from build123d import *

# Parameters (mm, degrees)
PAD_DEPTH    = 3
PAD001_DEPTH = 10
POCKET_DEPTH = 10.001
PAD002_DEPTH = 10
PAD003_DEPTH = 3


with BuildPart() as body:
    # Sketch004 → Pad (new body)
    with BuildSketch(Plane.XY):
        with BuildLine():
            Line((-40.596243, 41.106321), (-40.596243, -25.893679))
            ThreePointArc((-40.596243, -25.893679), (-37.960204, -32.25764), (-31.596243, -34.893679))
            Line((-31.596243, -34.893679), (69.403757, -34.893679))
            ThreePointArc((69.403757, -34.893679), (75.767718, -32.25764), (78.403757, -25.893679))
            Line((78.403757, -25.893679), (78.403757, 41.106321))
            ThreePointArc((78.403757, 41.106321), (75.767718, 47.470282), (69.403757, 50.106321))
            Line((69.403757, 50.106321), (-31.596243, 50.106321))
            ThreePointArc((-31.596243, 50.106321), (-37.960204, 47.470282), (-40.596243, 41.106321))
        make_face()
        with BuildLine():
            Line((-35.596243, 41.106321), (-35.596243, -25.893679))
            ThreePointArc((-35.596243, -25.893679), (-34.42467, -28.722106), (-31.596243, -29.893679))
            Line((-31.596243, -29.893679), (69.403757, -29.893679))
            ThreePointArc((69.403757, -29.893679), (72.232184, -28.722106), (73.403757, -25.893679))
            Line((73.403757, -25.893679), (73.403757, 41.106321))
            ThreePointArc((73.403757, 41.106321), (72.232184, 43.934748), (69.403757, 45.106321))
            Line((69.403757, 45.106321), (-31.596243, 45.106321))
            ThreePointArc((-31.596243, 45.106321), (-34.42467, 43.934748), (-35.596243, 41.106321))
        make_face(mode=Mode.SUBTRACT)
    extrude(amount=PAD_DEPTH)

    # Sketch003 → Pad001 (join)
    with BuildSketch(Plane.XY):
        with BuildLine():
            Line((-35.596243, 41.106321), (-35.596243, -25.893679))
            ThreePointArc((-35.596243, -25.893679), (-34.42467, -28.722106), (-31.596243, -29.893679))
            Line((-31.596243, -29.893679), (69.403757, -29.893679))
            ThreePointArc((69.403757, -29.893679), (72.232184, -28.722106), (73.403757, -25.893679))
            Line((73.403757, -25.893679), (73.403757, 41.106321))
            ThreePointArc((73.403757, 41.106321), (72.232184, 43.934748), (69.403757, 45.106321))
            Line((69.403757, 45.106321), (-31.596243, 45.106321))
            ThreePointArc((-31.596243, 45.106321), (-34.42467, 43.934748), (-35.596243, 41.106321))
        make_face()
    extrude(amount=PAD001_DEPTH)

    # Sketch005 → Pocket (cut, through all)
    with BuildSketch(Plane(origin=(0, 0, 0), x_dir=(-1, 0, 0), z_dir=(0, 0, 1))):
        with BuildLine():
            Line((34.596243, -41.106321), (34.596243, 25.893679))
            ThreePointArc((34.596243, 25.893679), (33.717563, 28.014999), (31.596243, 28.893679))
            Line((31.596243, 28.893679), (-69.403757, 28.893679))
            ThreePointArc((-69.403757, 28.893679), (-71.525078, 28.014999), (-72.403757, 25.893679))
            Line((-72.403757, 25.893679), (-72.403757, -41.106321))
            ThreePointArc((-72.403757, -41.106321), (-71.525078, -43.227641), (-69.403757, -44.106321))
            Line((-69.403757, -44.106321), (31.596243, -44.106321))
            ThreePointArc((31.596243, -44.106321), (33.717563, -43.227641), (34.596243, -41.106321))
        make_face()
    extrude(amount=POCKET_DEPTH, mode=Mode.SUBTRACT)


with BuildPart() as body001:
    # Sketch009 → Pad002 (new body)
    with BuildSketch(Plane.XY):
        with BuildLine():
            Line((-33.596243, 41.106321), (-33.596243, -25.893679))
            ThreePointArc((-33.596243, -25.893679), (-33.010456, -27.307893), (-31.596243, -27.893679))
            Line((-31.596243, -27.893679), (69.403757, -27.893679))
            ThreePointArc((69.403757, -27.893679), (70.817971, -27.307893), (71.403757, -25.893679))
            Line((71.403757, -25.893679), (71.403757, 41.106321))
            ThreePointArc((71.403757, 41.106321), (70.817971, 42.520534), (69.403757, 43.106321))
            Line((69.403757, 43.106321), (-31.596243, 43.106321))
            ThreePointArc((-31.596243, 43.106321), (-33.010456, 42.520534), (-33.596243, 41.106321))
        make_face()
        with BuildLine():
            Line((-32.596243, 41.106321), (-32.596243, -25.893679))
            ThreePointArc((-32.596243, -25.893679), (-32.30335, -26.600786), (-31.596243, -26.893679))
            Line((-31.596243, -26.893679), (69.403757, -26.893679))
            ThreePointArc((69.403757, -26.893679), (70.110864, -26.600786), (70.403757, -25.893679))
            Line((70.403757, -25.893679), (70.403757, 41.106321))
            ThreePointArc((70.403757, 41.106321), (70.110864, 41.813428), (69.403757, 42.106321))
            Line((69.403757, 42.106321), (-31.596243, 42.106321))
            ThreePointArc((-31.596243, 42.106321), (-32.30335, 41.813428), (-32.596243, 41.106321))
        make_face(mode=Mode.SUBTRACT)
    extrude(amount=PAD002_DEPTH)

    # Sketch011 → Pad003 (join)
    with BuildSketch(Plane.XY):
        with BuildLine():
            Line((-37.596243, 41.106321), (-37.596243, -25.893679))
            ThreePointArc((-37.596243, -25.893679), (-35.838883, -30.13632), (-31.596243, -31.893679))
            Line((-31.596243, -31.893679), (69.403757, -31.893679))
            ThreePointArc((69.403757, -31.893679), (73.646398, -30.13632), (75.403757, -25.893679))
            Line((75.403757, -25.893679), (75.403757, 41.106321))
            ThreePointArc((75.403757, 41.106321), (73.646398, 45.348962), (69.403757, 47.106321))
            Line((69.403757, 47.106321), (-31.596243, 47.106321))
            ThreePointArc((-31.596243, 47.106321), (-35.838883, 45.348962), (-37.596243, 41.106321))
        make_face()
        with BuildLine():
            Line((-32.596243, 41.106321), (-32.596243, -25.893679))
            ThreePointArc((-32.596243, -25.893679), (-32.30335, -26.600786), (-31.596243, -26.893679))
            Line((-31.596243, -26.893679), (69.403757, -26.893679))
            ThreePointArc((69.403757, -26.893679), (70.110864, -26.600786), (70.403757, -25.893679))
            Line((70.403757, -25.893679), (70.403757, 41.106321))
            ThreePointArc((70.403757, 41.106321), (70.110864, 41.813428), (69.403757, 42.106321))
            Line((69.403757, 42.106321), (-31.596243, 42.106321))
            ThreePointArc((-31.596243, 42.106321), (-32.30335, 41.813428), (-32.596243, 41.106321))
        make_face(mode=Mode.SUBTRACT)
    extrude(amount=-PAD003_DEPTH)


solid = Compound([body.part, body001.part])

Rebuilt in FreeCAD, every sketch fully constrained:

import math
import FreeCAD as App
import Part
import Sketcher
from FreeCAD import Vector
Q = App.Units.Quantity

doc = App.newDocument("Part")
body = doc.addObject("PartDesign::Body", "Body")

# Sketch on XY plane
sketch1 = doc.addObject("Sketcher::SketchObject", "Sketch")
body.addObject(sketch1)
sketch1.AttachmentSupport = (doc.XY_Plane, [""])
sketch1.MapMode = "FlatFace"
sketch1.addGeometry(Part.LineSegment(Vector(-40.6, 41.1, 0), Vector(-40.6, -25.9, 0)), False)
sketch1.addGeometry(Part.ArcOfCircle(Part.Circle(Vector(-31.6, -25.9, 0), Vector(0, 0, 1), 9), math.radians(-180), math.radians(-90)), False)
sketch1.addGeometry(Part.LineSegment(Vector(-31.6, -34.9, 0), Vector(69.4, -34.9, 0)), False)
sketch1.addGeometry(Part.ArcOfCircle(Part.Circle(Vector(69.4, -25.9, 0), Vector(0, 0, 1), 9), math.radians(-90), math.radians(0)), False)
sketch1.addGeometry(Part.LineSegment(Vector(78.4, -25.9, 0), Vector(78.4, 41.1, 0)), False)
sketch1.addGeometry(Part.ArcOfCircle(Part.Circle(Vector(69.4, 41.1, 0), Vector(0, 0, 1), 9), math.radians(0), math.radians(90)), False)
sketch1.addGeometry(Part.LineSegment(Vector(69.4, 50.1, 0), Vector(-31.6, 50.1, 0)), False)
sketch1.addGeometry(Part.ArcOfCircle(Part.Circle(Vector(-31.6, 41.1, 0), Vector(0, 0, 1), 9), math.radians(90), math.radians(180)), False)
sketch1.addGeometry(Part.LineSegment(Vector(-35.6, -25.9, 0), Vector(-35.6, 41.1, 0)), False)
sketch1.addGeometry(Part.ArcOfCircle(Part.Circle(Vector(-31.6, 41.1, 0), Vector(0, 0, 1), 4), math.radians(90), math.radians(180)), False)
sketch1.addGeometry(Part.LineSegment(Vector(-31.6, 45.1, 0), Vector(69.4, 45.1, 0)), False)
sketch1.addGeometry(Part.ArcOfCircle(Part.Circle(Vector(69.4, 41.1, 0), Vector(0, 0, 1), 4), math.radians(0), math.radians(90)), False)
sketch1.addGeometry(Part.LineSegment(Vector(73.4, 41.1, 0), Vector(73.4, -25.9, 0)), False)
sketch1.addGeometry(Part.ArcOfCircle(Part.Circle(Vector(69.4, -25.9, 0), Vector(0, 0, 1), 4), math.radians(-90), math.radians(0)), False)
sketch1.addGeometry(Part.LineSegment(Vector(69.4, -29.9, 0), Vector(-31.6, -29.9, 0)), False)
sketch1.addGeometry(Part.ArcOfCircle(Part.Circle(Vector(-31.6, -25.9, 0), Vector(0, 0, 1), 4), math.radians(-180), math.radians(-90)), False)
sketch1.addConstraint(Sketcher.Constraint("Tangent", 0, 2, 1, 1))
sketch1.addConstraint(Sketcher.Constraint("Tangent", 1, 2, 2, 1))
sketch1.addConstraint(Sketcher.Constraint("Tangent", 2, 2, 3, 1))
sketch1.addConstraint(Sketcher.Constraint("Tangent", 3, 2, 4, 1))
sketch1.addConstraint(Sketcher.Constraint("Tangent", 4, 2, 5, 1))
sketch1.addConstraint(Sketcher.Constraint("Tangent", 5, 2, 6, 1))
sketch1.addConstraint(Sketcher.Constraint("Tangent", 6, 2, 7, 1))
sketch1.addConstraint(Sketcher.Constraint("Tangent", 7, 2, 0, 1))
sketch1.addConstraint(Sketcher.Constraint("Tangent", 8, 2, 9, 2))
sketch1.addConstraint(Sketcher.Constraint("Tangent", 9, 1, 10, 1))
sketch1.addConstraint(Sketcher.Constraint("Tangent", 10, 2, 11, 2))
sketch1.addConstraint(Sketcher.Constraint("Tangent", 11, 1, 12, 1))
sketch1.addConstraint(Sketcher.Constraint("Tangent", 12, 2, 13, 2))
sketch1.addConstraint(Sketcher.Constraint("Tangent", 13, 1, 14, 1))
sketch1.addConstraint(Sketcher.Constraint("Tangent", 14, 2, 15, 2))
sketch1.addConstraint(Sketcher.Constraint("Tangent", 15, 1, 8, 1))
sketch1.addConstraint(Sketcher.Constraint("Vertical", 0))
sketch1.addConstraint(Sketcher.Constraint("Horizontal", 2))
sketch1.addConstraint(Sketcher.Constraint("Vertical", 4))
sketch1.addConstraint(Sketcher.Constraint("Horizontal", 6))
sketch1.addConstraint(Sketcher.Constraint("Vertical", 8))
sketch1.addConstraint(Sketcher.Constraint("Horizontal", 10))
sketch1.addConstraint(Sketcher.Constraint("Vertical", 12))
sketch1.addConstraint(Sketcher.Constraint("Horizontal", 14))
sketch1.addConstraint(Sketcher.Constraint("Coincident", 9, 3, 7, 3))
sketch1.addConstraint(Sketcher.Constraint("Coincident", 11, 3, 5, 3))
sketch1.addConstraint(Sketcher.Constraint("Coincident", 13, 3, 3, 3))
sketch1.addConstraint(Sketcher.Constraint("Equal", 1, 3))
sketch1.addConstraint(Sketcher.Constraint("Equal", 3, 5))
sketch1.addConstraint(Sketcher.Constraint("Equal", 5, 7))
sketch1.addConstraint(Sketcher.Constraint("Equal", 13, 15))
sketch1.addConstraint(Sketcher.Constraint("Radius", 1, Q("9 mm")))
sketch1.addConstraint(Sketcher.Constraint("Radius", 9, Q("4 mm")))
sketch1.addConstraint(Sketcher.Constraint("DistanceX", 2, 1, 2, 2, Q("101 mm")))
sketch1.addConstraint(Sketcher.Constraint("DistanceY", 0, 2, 0, 1, Q("67 mm")))
sketch1.addConstraint(Sketcher.Constraint("DistanceY", 1, 3, -1, 1, Q("25.893679 mm")))
sketch1.addConstraint(Sketcher.Constraint("DistanceX", 1, 3, -1, 1, Q("31.596243 mm")))
pad1 = doc.addObject("PartDesign::Pad", "Pad")
body.addObject(pad1)
pad1.Profile = sketch1
pad1.Length = 3

# Sketch on XY plane
sketch2 = doc.addObject("Sketcher::SketchObject", "Sketch001")
body.addObject(sketch2)
sketch2.AttachmentSupport = (doc.XY_Plane, [""])
sketch2.MapMode = "FlatFace"
sketch2.addGeometry(Part.LineSegment(Vector(-35.6, 41.1, 0), Vector(-35.6, -25.9, 0)), False)
sketch2.addGeometry(Part.ArcOfCircle(Part.Circle(Vector(-31.6, -25.9, 0), Vector(0, 0, 1), 4), math.radians(-180), math.radians(-90)), False)
sketch2.addGeometry(Part.LineSegment(Vector(-31.6, -29.9, 0), Vector(69.4, -29.9, 0)), False)
sketch2.addGeometry(Part.ArcOfCircle(Part.Circle(Vector(69.4, -25.9, 0), Vector(0, 0, 1), 4), math.radians(-90), math.radians(0)), False)
sketch2.addGeometry(Part.LineSegment(Vector(73.4, -25.9, 0), Vector(73.4, 41.1, 0)), False)
sketch2.addGeometry(Part.ArcOfCircle(Part.Circle(Vector(69.4, 41.1, 0), Vector(0, 0, 1), 4), math.radians(0), math.radians(90)), False)
sketch2.addGeometry(Part.LineSegment(Vector(69.4, 45.1, 0), Vector(-31.6, 45.1, 0)), False)
sketch2.addGeometry(Part.ArcOfCircle(Part.Circle(Vector(-31.6, 41.1, 0), Vector(0, 0, 1), 4), math.radians(90), math.radians(180)), False)
sketch2.addConstraint(Sketcher.Constraint("Tangent", 0, 2, 1, 1))
sketch2.addConstraint(Sketcher.Constraint("Tangent", 1, 2, 2, 1))
sketch2.addConstraint(Sketcher.Constraint("Tangent", 2, 2, 3, 1))
sketch2.addConstraint(Sketcher.Constraint("Tangent", 3, 2, 4, 1))
sketch2.addConstraint(Sketcher.Constraint("Tangent", 4, 2, 5, 1))
sketch2.addConstraint(Sketcher.Constraint("Tangent", 5, 2, 6, 1))
sketch2.addConstraint(Sketcher.Constraint("Tangent", 6, 2, 7, 1))
sketch2.addConstraint(Sketcher.Constraint("Tangent", 7, 2, 0, 1))
sketch2.addConstraint(Sketcher.Constraint("Vertical", 0))
sketch2.addConstraint(Sketcher.Constraint("Horizontal", 2))
sketch2.addConstraint(Sketcher.Constraint("Vertical", 4))
sketch2.addConstraint(Sketcher.Constraint("Horizontal", 6))
sketch2.addConstraint(Sketcher.Constraint("Equal", 1, 3))
sketch2.addConstraint(Sketcher.Constraint("Equal", 3, 5))
sketch2.addConstraint(Sketcher.Constraint("Equal", 5, 7))
sketch2.addConstraint(Sketcher.Constraint("Radius", 1, Q("4 mm")))
sketch2.addConstraint(Sketcher.Constraint("DistanceX", 2, 1, 2, 2, Q("101 mm")))
sketch2.addConstraint(Sketcher.Constraint("DistanceY", 0, 2, 0, 1, Q("67 mm")))
sketch2.addConstraint(Sketcher.Constraint("DistanceY", 1, 3, -1, 1, Q("25.893679 mm")))
sketch2.addConstraint(Sketcher.Constraint("DistanceX", 1, 3, -1, 1, Q("31.596243 mm")))
pad2 = doc.addObject("PartDesign::Pad", "Pad001")
body.addObject(pad2)
pad2.Profile = sketch2
pad2.Length = 10

# Sketch on XY plane
sketch3 = doc.addObject("Sketcher::SketchObject", "Sketch002")
body.addObject(sketch3)
sketch3.AttachmentSupport = (doc.XY_Plane, [""])
sketch3.MapMode = "FlatFace"
sketch3.addGeometry(Part.LineSegment(Vector(-34.6, 41.1, 0), Vector(-34.6, -25.9, 0)), False)
sketch3.addGeometry(Part.ArcOfCircle(Part.Circle(Vector(-31.6, -25.9, 0), Vector(0, 0, 1), 3), math.radians(-180), math.radians(-90)), False)
sketch3.addGeometry(Part.LineSegment(Vector(-31.6, -28.9, 0), Vector(69.4, -28.9, 0)), False)
sketch3.addGeometry(Part.ArcOfCircle(Part.Circle(Vector(69.4, -25.9, 0), Vector(0, 0, 1), 3), math.radians(-90), math.radians(0)), False)
sketch3.addGeometry(Part.LineSegment(Vector(72.4, -25.9, 0), Vector(72.4, 41.1, 0)), False)
sketch3.addGeometry(Part.ArcOfCircle(Part.Circle(Vector(69.4, 41.1, 0), Vector(0, 0, 1), 3), math.radians(0), math.radians(90)), False)
sketch3.addGeometry(Part.LineSegment(Vector(69.4, 44.1, 0), Vector(-31.6, 44.1, 0)), False)
sketch3.addGeometry(Part.ArcOfCircle(Part.Circle(Vector(-31.6, 41.1, 0), Vector(0, 0, 1), 3), math.radians(90), math.radians(180)), False)
sketch3.addConstraint(Sketcher.Constraint("Tangent", 0, 2, 1, 1))
sketch3.addConstraint(Sketcher.Constraint("Tangent", 1, 2, 2, 1))
sketch3.addConstraint(Sketcher.Constraint("Tangent", 2, 2, 3, 1))
sketch3.addConstraint(Sketcher.Constraint("Tangent", 3, 2, 4, 1))
sketch3.addConstraint(Sketcher.Constraint("Tangent", 4, 2, 5, 1))
sketch3.addConstraint(Sketcher.Constraint("Tangent", 5, 2, 6, 1))
sketch3.addConstraint(Sketcher.Constraint("Tangent", 6, 2, 7, 1))
sketch3.addConstraint(Sketcher.Constraint("Tangent", 7, 2, 0, 1))
sketch3.addConstraint(Sketcher.Constraint("Vertical", 0))
sketch3.addConstraint(Sketcher.Constraint("Horizontal", 2))
sketch3.addConstraint(Sketcher.Constraint("Vertical", 4))
sketch3.addConstraint(Sketcher.Constraint("Horizontal", 6))
sketch3.addConstraint(Sketcher.Constraint("Equal", 1, 3))
sketch3.addConstraint(Sketcher.Constraint("Equal", 3, 5))
sketch3.addConstraint(Sketcher.Constraint("Equal", 5, 7))
sketch3.addConstraint(Sketcher.Constraint("Radius", 1, Q("3.000001 mm")))
sketch3.addConstraint(Sketcher.Constraint("DistanceX", 2, 1, 2, 2, Q("101 mm")))
sketch3.addConstraint(Sketcher.Constraint("DistanceY", 0, 2, 0, 1, Q("67 mm")))
sketch3.addConstraint(Sketcher.Constraint("DistanceX", 1, 3, -1, 1, Q("31.596242 mm")))
sketch3.addConstraint(Sketcher.Constraint("DistanceY", 3, 3, -1, 1, Q("25.89368 mm")))
pocket1 = doc.addObject("PartDesign::Pocket", "Pocket")
body.addObject(pocket1)
pocket1.Profile = sketch3
pocket1.Type = "ThroughAll"
pocket1.Reversed = True
body2 = doc.addObject("PartDesign::Body", "Body001")

# Sketch on XY plane
sketch4 = doc.addObject("Sketcher::SketchObject", "Sketch003")
body2.addObject(sketch4)
sketch4.AttachmentSupport = (doc.getObject("XY_Plane001"), [""])
sketch4.MapMode = "FlatFace"
sketch4.addGeometry(Part.LineSegment(Vector(-33.6, 41.1, 0), Vector(-33.6, -25.9, 0)), False)
sketch4.addGeometry(Part.ArcOfCircle(Part.Circle(Vector(-31.6, -25.9, 0), Vector(0, 0, 1), 2), math.radians(-180), math.radians(-90)), False)
sketch4.addGeometry(Part.LineSegment(Vector(-31.6, -27.9, 0), Vector(69.4, -27.9, 0)), False)
sketch4.addGeometry(Part.ArcOfCircle(Part.Circle(Vector(69.4, -25.9, 0), Vector(0, 0, 1), 2), math.radians(-90), math.radians(0)), False)
sketch4.addGeometry(Part.LineSegment(Vector(71.4, -25.9, 0), Vector(71.4, 41.1, 0)), False)
sketch4.addGeometry(Part.ArcOfCircle(Part.Circle(Vector(69.4, 41.1, 0), Vector(0, 0, 1), 2), math.radians(0), math.radians(90)), False)
sketch4.addGeometry(Part.LineSegment(Vector(69.4, 43.1, 0), Vector(-31.6, 43.1, 0)), False)
sketch4.addGeometry(Part.ArcOfCircle(Part.Circle(Vector(-31.6, 41.1, 0), Vector(0, 0, 1), 2), math.radians(90), math.radians(180)), False)
sketch4.addGeometry(Part.LineSegment(Vector(-32.6, -25.9, 0), Vector(-32.6, 41.1, 0)), False)
sketch4.addGeometry(Part.ArcOfCircle(Part.Circle(Vector(-31.6, 41.1, 0), Vector(0, 0, 1), 1), math.radians(90), math.radians(180)), False)
sketch4.addGeometry(Part.LineSegment(Vector(-31.6, 42.1, 0), Vector(69.4, 42.1, 0)), False)
sketch4.addGeometry(Part.ArcOfCircle(Part.Circle(Vector(69.4, 41.1, 0), Vector(0, 0, 1), 1), math.radians(0), math.radians(90)), False)
sketch4.addGeometry(Part.LineSegment(Vector(70.4, 41.1, 0), Vector(70.4, -25.9, 0)), False)
sketch4.addGeometry(Part.ArcOfCircle(Part.Circle(Vector(69.4, -25.9, 0), Vector(0, 0, 1), 1), math.radians(-90), math.radians(0)), False)
sketch4.addGeometry(Part.LineSegment(Vector(69.4, -26.9, 0), Vector(-31.6, -26.9, 0)), False)
sketch4.addGeometry(Part.ArcOfCircle(Part.Circle(Vector(-31.6, -25.9, 0), Vector(0, 0, 1), 1), math.radians(180), math.radians(270)), False)
sketch4.addConstraint(Sketcher.Constraint("Tangent", 0, 2, 1, 1))
sketch4.addConstraint(Sketcher.Constraint("Tangent", 1, 2, 2, 1))
sketch4.addConstraint(Sketcher.Constraint("Tangent", 2, 2, 3, 1))
sketch4.addConstraint(Sketcher.Constraint("Tangent", 3, 2, 4, 1))
sketch4.addConstraint(Sketcher.Constraint("Tangent", 4, 2, 5, 1))
sketch4.addConstraint(Sketcher.Constraint("Tangent", 5, 2, 6, 1))
sketch4.addConstraint(Sketcher.Constraint("Tangent", 6, 2, 7, 1))
sketch4.addConstraint(Sketcher.Constraint("Tangent", 7, 2, 0, 1))
sketch4.addConstraint(Sketcher.Constraint("Tangent", 8, 2, 9, 2))
sketch4.addConstraint(Sketcher.Constraint("Tangent", 9, 1, 10, 1))
sketch4.addConstraint(Sketcher.Constraint("Tangent", 10, 2, 11, 2))
sketch4.addConstraint(Sketcher.Constraint("Tangent", 11, 1, 12, 1))
sketch4.addConstraint(Sketcher.Constraint("Tangent", 12, 2, 13, 2))
sketch4.addConstraint(Sketcher.Constraint("Tangent", 13, 1, 14, 1))
sketch4.addConstraint(Sketcher.Constraint("Tangent", 14, 2, 15, 2))
sketch4.addConstraint(Sketcher.Constraint("Tangent", 15, 1, 8, 1))
sketch4.addConstraint(Sketcher.Constraint("Vertical", 0))
sketch4.addConstraint(Sketcher.Constraint("Horizontal", 2))
sketch4.addConstraint(Sketcher.Constraint("Vertical", 4))
sketch4.addConstraint(Sketcher.Constraint("Horizontal", 6))
sketch4.addConstraint(Sketcher.Constraint("Vertical", 8))
sketch4.addConstraint(Sketcher.Constraint("Horizontal", 10))
sketch4.addConstraint(Sketcher.Constraint("Vertical", 12))
sketch4.addConstraint(Sketcher.Constraint("Horizontal", 14))
sketch4.addConstraint(Sketcher.Constraint("Coincident", 9, 3, 7, 3))
sketch4.addConstraint(Sketcher.Constraint("Coincident", 11, 3, 5, 3))
sketch4.addConstraint(Sketcher.Constraint("Coincident", 13, 3, 3, 3))
sketch4.addConstraint(Sketcher.Constraint("Equal", 1, 3))
sketch4.addConstraint(Sketcher.Constraint("Equal", 3, 5))
sketch4.addConstraint(Sketcher.Constraint("Equal", 5, 7))
sketch4.addConstraint(Sketcher.Constraint("Equal", 13, 15))
sketch4.addConstraint(Sketcher.Constraint("Radius", 1, Q("2 mm")))
sketch4.addConstraint(Sketcher.Constraint("Radius", 9, Q("0.999999 mm")))
sketch4.addConstraint(Sketcher.Constraint("DistanceX", 2, 1, 2, 2, Q("101 mm")))
sketch4.addConstraint(Sketcher.Constraint("DistanceY", 0, 2, 0, 1, Q("67 mm")))
sketch4.addConstraint(Sketcher.Constraint("DistanceY", 1, 3, -1, 1, Q("25.893679 mm")))
sketch4.addConstraint(Sketcher.Constraint("DistanceX", -1, 1, 3, 3, Q("69.403758 mm")))
pad3 = doc.addObject("PartDesign::Pad", "Pad002")
body2.addObject(pad3)
pad3.Profile = sketch4
pad3.Length = 10

# Sketch on XY plane
sketch5 = doc.addObject("Sketcher::SketchObject", "Sketch004")
body2.addObject(sketch5)
sketch5.AttachmentSupport = (doc.getObject("XY_Plane001"), [""])
sketch5.MapMode = "FlatFace"
sketch5.addGeometry(Part.LineSegment(Vector(-37.6, 41.1, 0), Vector(-37.6, -25.9, 0)), False)
sketch5.addGeometry(Part.ArcOfCircle(Part.Circle(Vector(-31.6, -25.9, 0), Vector(0, 0, 1), 6), math.radians(-180), math.radians(-90)), False)
sketch5.addGeometry(Part.LineSegment(Vector(-31.6, -31.9, 0), Vector(69.4, -31.9, 0)), False)
sketch5.addGeometry(Part.ArcOfCircle(Part.Circle(Vector(69.4, -25.9, 0), Vector(0, 0, 1), 6), math.radians(-90), math.radians(0)), False)
sketch5.addGeometry(Part.LineSegment(Vector(75.4, -25.9, 0), Vector(75.4, 41.1, 0)), False)
sketch5.addGeometry(Part.ArcOfCircle(Part.Circle(Vector(69.4, 41.1, 0), Vector(0, 0, 1), 6), math.radians(0), math.radians(90)), False)
sketch5.addGeometry(Part.LineSegment(Vector(69.4, 47.1, 0), Vector(-31.6, 47.1, 0)), False)
sketch5.addGeometry(Part.ArcOfCircle(Part.Circle(Vector(-31.6, 41.1, 0), Vector(0, 0, 1), 6), math.radians(90), math.radians(180)), False)
sketch5.addGeometry(Part.LineSegment(Vector(-32.6, -25.9, 0), Vector(-32.6, 41.1, 0)), False)
sketch5.addGeometry(Part.ArcOfCircle(Part.Circle(Vector(-31.6, 41.1, 0), Vector(0, 0, 1), 1), math.radians(90), math.radians(180)), False)
sketch5.addGeometry(Part.LineSegment(Vector(-31.6, 42.1, 0), Vector(69.4, 42.1, 0)), False)
sketch5.addGeometry(Part.ArcOfCircle(Part.Circle(Vector(69.4, 41.1, 0), Vector(0, 0, 1), 1), math.radians(0), math.radians(90)), False)
sketch5.addGeometry(Part.LineSegment(Vector(70.4, 41.1, 0), Vector(70.4, -25.9, 0)), False)
sketch5.addGeometry(Part.ArcOfCircle(Part.Circle(Vector(69.4, -25.9, 0), Vector(0, 0, 1), 1), math.radians(-90), math.radians(0)), False)
sketch5.addGeometry(Part.LineSegment(Vector(69.4, -26.9, 0), Vector(-31.6, -26.9, 0)), False)
sketch5.addGeometry(Part.ArcOfCircle(Part.Circle(Vector(-31.6, -25.9, 0), Vector(0, 0, 1), 1), math.radians(180), math.radians(270)), False)
sketch5.addConstraint(Sketcher.Constraint("Tangent", 0, 2, 1, 1))
sketch5.addConstraint(Sketcher.Constraint("Tangent", 1, 2, 2, 1))
sketch5.addConstraint(Sketcher.Constraint("Tangent", 2, 2, 3, 1))
sketch5.addConstraint(Sketcher.Constraint("Tangent", 3, 2, 4, 1))
sketch5.addConstraint(Sketcher.Constraint("Tangent", 4, 2, 5, 1))
sketch5.addConstraint(Sketcher.Constraint("Tangent", 5, 2, 6, 1))
sketch5.addConstraint(Sketcher.Constraint("Tangent", 6, 2, 7, 1))
sketch5.addConstraint(Sketcher.Constraint("Tangent", 7, 2, 0, 1))
sketch5.addConstraint(Sketcher.Constraint("Tangent", 8, 2, 9, 2))
sketch5.addConstraint(Sketcher.Constraint("Tangent", 9, 1, 10, 1))
sketch5.addConstraint(Sketcher.Constraint("Tangent", 10, 2, 11, 2))
sketch5.addConstraint(Sketcher.Constraint("Tangent", 11, 1, 12, 1))
sketch5.addConstraint(Sketcher.Constraint("Tangent", 12, 2, 13, 2))
sketch5.addConstraint(Sketcher.Constraint("Tangent", 13, 1, 14, 1))
sketch5.addConstraint(Sketcher.Constraint("Tangent", 14, 2, 15, 2))
sketch5.addConstraint(Sketcher.Constraint("Tangent", 15, 1, 8, 1))
sketch5.addConstraint(Sketcher.Constraint("Vertical", 0))
sketch5.addConstraint(Sketcher.Constraint("Horizontal", 2))
sketch5.addConstraint(Sketcher.Constraint("Vertical", 4))
sketch5.addConstraint(Sketcher.Constraint("Horizontal", 6))
sketch5.addConstraint(Sketcher.Constraint("Vertical", 8))
sketch5.addConstraint(Sketcher.Constraint("Horizontal", 10))
sketch5.addConstraint(Sketcher.Constraint("Vertical", 12))
sketch5.addConstraint(Sketcher.Constraint("Horizontal", 14))
sketch5.addConstraint(Sketcher.Constraint("Coincident", 9, 3, 7, 3))
sketch5.addConstraint(Sketcher.Constraint("Coincident", 11, 3, 5, 3))
sketch5.addConstraint(Sketcher.Constraint("Coincident", 13, 3, 3, 3))
sketch5.addConstraint(Sketcher.Constraint("Equal", 1, 3))
sketch5.addConstraint(Sketcher.Constraint("Equal", 3, 5))
sketch5.addConstraint(Sketcher.Constraint("Equal", 5, 7))
sketch5.addConstraint(Sketcher.Constraint("Equal", 13, 15))
sketch5.addConstraint(Sketcher.Constraint("Radius", 1, Q("6.000001 mm")))
sketch5.addConstraint(Sketcher.Constraint("Radius", 9, Q("0.999999 mm")))
sketch5.addConstraint(Sketcher.Constraint("DistanceX", 2, 1, 2, 2, Q("101 mm")))
sketch5.addConstraint(Sketcher.Constraint("DistanceY", 0, 2, 0, 1, Q("67 mm")))
sketch5.addConstraint(Sketcher.Constraint("DistanceY", 1, 3, -1, 1, Q("25.893678 mm")))
sketch5.addConstraint(Sketcher.Constraint("DistanceX", -1, 1, 3, 3, Q("69.403758 mm")))
pad4 = doc.addObject("PartDesign::Pad", "Pad003")
body2.addObject(pad4)
pad4.Profile = sketch5
pad4.Length = 3
pad4.Reversed = True

doc.recompute()
